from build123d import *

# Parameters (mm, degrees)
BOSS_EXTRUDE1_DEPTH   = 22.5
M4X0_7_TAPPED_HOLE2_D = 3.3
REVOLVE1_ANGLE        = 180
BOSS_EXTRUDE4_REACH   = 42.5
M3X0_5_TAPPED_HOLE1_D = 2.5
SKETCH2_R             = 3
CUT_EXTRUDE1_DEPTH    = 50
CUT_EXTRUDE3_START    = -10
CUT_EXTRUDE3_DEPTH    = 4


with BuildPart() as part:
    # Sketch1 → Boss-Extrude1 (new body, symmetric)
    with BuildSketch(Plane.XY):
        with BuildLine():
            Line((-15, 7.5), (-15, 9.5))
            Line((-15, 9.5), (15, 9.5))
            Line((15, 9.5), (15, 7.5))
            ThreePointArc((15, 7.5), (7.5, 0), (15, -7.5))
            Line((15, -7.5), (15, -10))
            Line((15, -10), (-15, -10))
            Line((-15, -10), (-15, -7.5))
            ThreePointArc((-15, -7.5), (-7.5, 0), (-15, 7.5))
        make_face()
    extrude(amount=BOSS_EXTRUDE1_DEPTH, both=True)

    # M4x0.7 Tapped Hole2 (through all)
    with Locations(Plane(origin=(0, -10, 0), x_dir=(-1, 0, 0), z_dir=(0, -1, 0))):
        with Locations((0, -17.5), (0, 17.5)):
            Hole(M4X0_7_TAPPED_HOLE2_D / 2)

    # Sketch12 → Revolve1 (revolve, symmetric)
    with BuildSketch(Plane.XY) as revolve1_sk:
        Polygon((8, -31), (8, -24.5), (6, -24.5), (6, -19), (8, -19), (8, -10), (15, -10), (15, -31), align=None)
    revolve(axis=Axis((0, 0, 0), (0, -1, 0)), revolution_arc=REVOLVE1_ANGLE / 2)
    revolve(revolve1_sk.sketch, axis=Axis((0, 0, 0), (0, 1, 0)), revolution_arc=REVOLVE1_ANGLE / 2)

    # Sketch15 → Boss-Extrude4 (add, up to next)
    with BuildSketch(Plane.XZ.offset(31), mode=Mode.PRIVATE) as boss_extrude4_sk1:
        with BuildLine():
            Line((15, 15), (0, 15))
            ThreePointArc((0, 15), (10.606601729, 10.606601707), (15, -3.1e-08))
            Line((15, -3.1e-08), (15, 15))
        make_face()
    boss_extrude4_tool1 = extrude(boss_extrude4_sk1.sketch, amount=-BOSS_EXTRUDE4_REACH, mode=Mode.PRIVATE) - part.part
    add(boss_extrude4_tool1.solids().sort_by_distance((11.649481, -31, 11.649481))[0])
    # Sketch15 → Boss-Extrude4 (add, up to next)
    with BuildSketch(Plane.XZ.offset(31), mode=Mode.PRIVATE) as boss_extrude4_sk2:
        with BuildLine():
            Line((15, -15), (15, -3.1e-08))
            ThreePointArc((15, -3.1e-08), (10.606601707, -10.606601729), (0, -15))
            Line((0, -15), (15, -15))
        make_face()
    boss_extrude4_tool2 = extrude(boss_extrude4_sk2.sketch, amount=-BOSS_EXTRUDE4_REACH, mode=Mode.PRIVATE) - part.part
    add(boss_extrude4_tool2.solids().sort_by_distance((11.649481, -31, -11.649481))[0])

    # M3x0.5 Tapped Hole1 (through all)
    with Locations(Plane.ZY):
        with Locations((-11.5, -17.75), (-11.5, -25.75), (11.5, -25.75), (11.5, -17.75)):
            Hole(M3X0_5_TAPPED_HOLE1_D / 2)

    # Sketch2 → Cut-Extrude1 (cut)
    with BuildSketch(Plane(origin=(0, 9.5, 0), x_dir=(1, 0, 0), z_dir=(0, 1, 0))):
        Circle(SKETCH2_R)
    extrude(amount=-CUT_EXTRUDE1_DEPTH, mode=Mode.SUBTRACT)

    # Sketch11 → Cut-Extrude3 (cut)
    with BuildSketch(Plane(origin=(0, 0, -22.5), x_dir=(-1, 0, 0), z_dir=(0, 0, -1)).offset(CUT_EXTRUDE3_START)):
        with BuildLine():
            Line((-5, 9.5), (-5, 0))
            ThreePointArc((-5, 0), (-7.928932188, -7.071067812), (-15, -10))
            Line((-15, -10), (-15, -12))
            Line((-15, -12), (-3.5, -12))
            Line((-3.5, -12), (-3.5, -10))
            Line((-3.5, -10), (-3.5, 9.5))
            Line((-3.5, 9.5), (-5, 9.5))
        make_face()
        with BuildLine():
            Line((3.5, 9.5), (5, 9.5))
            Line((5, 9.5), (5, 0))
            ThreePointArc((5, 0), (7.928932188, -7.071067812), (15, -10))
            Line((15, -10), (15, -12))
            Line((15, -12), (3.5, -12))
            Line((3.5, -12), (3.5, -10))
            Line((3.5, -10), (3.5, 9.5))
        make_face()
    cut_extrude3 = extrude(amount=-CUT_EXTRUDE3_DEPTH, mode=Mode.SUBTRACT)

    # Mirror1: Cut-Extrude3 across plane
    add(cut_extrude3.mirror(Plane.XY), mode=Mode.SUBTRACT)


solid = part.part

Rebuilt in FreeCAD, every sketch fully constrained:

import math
import FreeCAD as App
import Part
import Sketcher

V = App.Vector

doc = App.newDocument("Part")
params = doc.addObject("Spreadsheet::Sheet", "Params")
for row, (alias, value) in enumerate([
    ("sketch1_radius", "7.5 mm"),
    ("sketch1_width", "30 mm"),
    ("sketch1_height", "2 mm"),
    ("sketch1_height2", "2.5 mm"),
    ("pad1_length", "45 mm"),
    ("sketch2_diameter", "3.3 mm"),
    ("hole_diameter", "3.3 mm"),
    ("sketch3_width", "7 mm"),
    ("sketch3_width2", "2 mm"),
    ("sketch3_height", "21 mm"),
    ("sketch3_height2", "9 mm"),
    ("sketch3_height3", "6.5 mm"),
    ("revolution_angle", "90 deg"),
    ("sketch4_width", "7 mm"),
    ("sketch4_width2", "2 mm"),
    ("sketch4_height", "21 mm"),
    ("sketch4_height2", "9 mm"),
    ("sketch4_height3", "6.5 mm"),
    ("revolution2_angle", "90 deg"),
    ("sketch5_radius", "15 mm"),
    ("sketch6_radius", "15 mm"),
    ("sketch7_diameter", "2.5 mm"),
    ("hole2_diameter", "2.5 mm"),
    ("sketch8_diameter", "6 mm"),
    ("pocket1_length", "50 mm"),
    ("sketch9_radius", "10 mm"),
    ("sketch9_height", "2 mm"),
    ("sketch9_width", "11.5 mm"),
    ("sketch9_height2", "9.5 mm"),
    ("pocket2_length", "4 mm"),
], start=1):
    params.set(f"A{row}", alias)
    params.set(f"B{row}", "=" + value)
    params.setAlias(f"B{row}", alias)

body = doc.addObject("PartDesign::Body", "Body")

sketch1 = body.newObject("Sketcher::SketchObject", "Sketch")
sketch1.AttachmentSupport = (doc.getObject("XY_Plane"), [""])
sketch1.MapMode = "FlatFace"
sketch1.addGeometry([
    Part.LineSegment(V(-15, 9.5, 0), V(-15, 7.5, 0)),
    Part.ArcOfCircle(Part.Circle(V(-15, 0, 0), V(0, 0, 1), 7.5), math.radians(-90), math.radians(90)),
    Part.LineSegment(V(-15, -7.5, 0), V(-15, -10, 0)),
    Part.LineSegment(V(-15, -10, 0), V(15, -10, 0)),
    Part.LineSegment(V(15, -10, 0), V(15, -7.5, 0)),
    Part.ArcOfCircle(Part.Circle(V(15, 0, 0), V(0, 0, 1), 7.5), math.radians(90), math.radians(270)),
    Part.LineSegment(V(15, 7.5, 0), V(15, 9.5, 0)),
    Part.LineSegment(V(15, 9.5, 0), V(-15, 9.5, 0)),
], False)
sketch1.addConstraint([
    Sketcher.Constraint("Coincident", 0, 2, 1, 2),
    Sketcher.Constraint("Coincident", 1, 1, 2, 1),
    Sketcher.Constraint("Coincident", 2, 2, 3, 1),
    Sketcher.Constraint("Coincident", 3, 2, 4, 1),
    Sketcher.Constraint("Coincident", 4, 2, 5, 2),
    Sketcher.Constraint("Coincident", 5, 1, 6, 1),
    Sketcher.Constraint("Coincident", 6, 2, 7, 1),
    Sketcher.Constraint("Coincident", 7, 2, 0, 1),
    Sketcher.Constraint("Vertical", 0),
    Sketcher.Constraint("Vertical", 2),
    Sketcher.Constraint("Horizontal", 3),
    Sketcher.Constraint("Vertical", 4),
    Sketcher.Constraint("Vertical", 6),
    Sketcher.Constraint("Horizontal", 7),
    Sketcher.Constraint("Equal", 1, 5),
    Sketcher.Constraint("Symmetric", 1, 3, 5, 3, -1, 1),
    Sketcher.Constraint("Symmetric", 1, 1, 4, 2, -2),
    Sketcher.Constraint("Vertical", 1, 3, 0, 2),
    Sketcher.Constraint("Vertical", 0, 2, 1, 1),
    Sketcher.Constraint("Vertical", 4, 2, 5, 1),
    Sketcher.Constraint("Radius", 1, 7.5),
    Sketcher.Constraint("DistanceX", 3, 1, 3, 2, 30.0),
    Sketcher.Constraint("DistanceY", 0, 2, 0, 1, 2.0),
    Sketcher.Constraint("DistanceY", 2, 2, 2, 1, 2.5),
])
sketch1.setExpression("Constraints[20]", "Params.sketch1_radius")
sketch1.setExpression("Constraints[21]", "Params.sketch1_width")
sketch1.setExpression("Constraints[22]", "Params.sketch1_height")
sketch1.setExpression("Constraints[23]", "Params.sketch1_height2")
pad1 = body.newObject("PartDesign::Pad", "Pad")
pad1.Profile = sketch1
pad1.setExpression("Length", "Params.pad1_length")
pad1.Midplane = True

sketch2 = body.newObject("Sketcher::SketchObject", "Sketch001")
sketch2.AttachmentSupport = (doc.getObject("XZ_Plane"), [""])
sketch2.MapMode = "FlatFace"
sketch2.AttachmentOffset = App.Placement(V(0, 0, 10), App.Rotation())
sketch2.addGeometry([
    Part.Circle(V(0, 17.5, 0), V(0, 0, 1), 1.6),
    Part.Circle(V(0, -17.5, 0), V(0, 0, 1), 1.6),
], False)
sketch2.addConstraint([
    Sketcher.Constraint("Equal", 0, 1),
    Sketcher.Constraint("Symmetric", 0, 3, 1, 3, -1, 1),
    Sketcher.Constraint("PointOnObject", 0, 3, -2),
    Sketcher.Constraint("Diameter", 0, 3.3),
    Sketcher.Constraint("DistanceY", 1, 3, 0, 3, 35.0),
])
sketch2.setExpression("Constraints[3]", "Params.sketch2_diameter")
doc.recompute()
hole = body.newObject("PartDesign::Hole", "Hole")
hole.Profile = sketch2
hole.ThreadType = "None"
hole.setExpression("Diameter", "Params.hole_diameter")
hole.DepthType = "ThroughAll"

sketch3 = body.newObject("Sketcher::SketchObject", "Sketch002")
sketch3.AttachmentSupport = (doc.getObject("XY_Plane"), [""])
sketch3.MapMode = "FlatFace"
sketch3.addGeometry([
    Part.LineSegment(V(8, -24.5, 0), V(8, -31, 0)),
    Part.LineSegment(V(8, -31, 0), V(15, -31, 0)),
    Part.LineSegment(V(15, -31, 0), V(15, -10, 0)),
    Part.LineSegment(V(15, -10, 0), V(8, -10, 0)),
    Part.LineSegment(V(8, -10, 0), V(8, -19, 0)),
    Part.LineSegment(V(8, -19, 0), V(6, -19, 0)),
    Part.LineSegment(V(6, -19, 0), V(6, -24.5, 0)),
    Part.LineSegment(V(6, -24.5, 0), V(8, -24.5, 0)),
], False)
sketch3.addConstraint([
    Sketcher.Constraint("Coincident", 0, 2, 1, 1),
    Sketcher.Constraint("Coincident", 1, 2, 2, 1),
    Sketcher.Constraint("Coincident", 2, 2, 3, 1),
    Sketcher.Constraint("Coincident", 3, 2, 4, 1),
    Sketcher.Constraint("Coincident", 4, 2, 5, 1),
    Sketcher.Constraint("Coincident", 5, 2, 6, 1),
    Sketcher.Constraint("Coincident", 6, 2, 7, 1),
    Sketcher.Constraint("Coincident", 7, 2, 0, 1),
    Sketcher.Constraint("Vertical", 0),
    Sketcher.Constraint("Horizontal", 1),
    Sketcher.Constraint("Vertical", 2),
    Sketcher.Constraint("Horizontal", 3),
    Sketcher.Constraint("Vertical", 4),
    Sketcher.Constraint("Horizontal", 5),
    Sketcher.Constraint("Vertical", 6),
    Sketcher.Constraint("Horizontal", 7),
    Sketcher.Constraint("Vertical", 0, 2, 3, 2),
    Sketcher.Constraint("DistanceX", 1, 1, 1, 2, 7.0),
    Sketcher.Constraint("DistanceX", 5, 2, 5, 1, 2.0),
    Sketcher.Constraint("DistanceY", 2, 1, 2, 2, 21.0),
    Sketcher.Constraint("DistanceY", 4, 2, 4, 1, 9.0),
    Sketcher.Constraint("DistanceY", 0, 2, 0, 1, 6.5),
    Sketcher.Constraint("DistanceX", -1, 1, 0, 2, 8.0),
    Sketcher.Constraint("DistanceY", 0, 2, -1, 1, 31.0),
])
sketch3.setExpression("Constraints[17]", "Params.sketch3_width")
sketch3.setExpression("Constraints[18]", "Params.sketch3_width2")
sketch3.setExpression("Constraints[19]", "Params.sketch3_height")
sketch3.setExpression("Constraints[20]", "Params.sketch3_height2")
sketch3.setExpression("Constraints[21]", "Params.sketch3_height3")
revolution = body.newObject("PartDesign::Revolution", "Revolution")
revolution.Profile = sketch3
revolution.ReferenceAxis = (sketch3, ["V_Axis"])
revolution.setExpression("Angle", "Params.revolution_angle")
revolution.Reversed = True

sketch4 = body.newObject("Sketcher::SketchObject", "Sketch003")
sketch4.AttachmentSupport = (doc.getObject("XY_Plane"), [""])
sketch4.MapMode = "FlatFace"
sketch4.addGeometry([
    Part.LineSegment(V(8, -24.5, 0), V(8, -31, 0)),
    Part.LineSegment(V(8, -31, 0), V(15, -31, 0)),
    Part.LineSegment(V(15, -31, 0), V(15, -10, 0)),
    Part.LineSegment(V(15, -10, 0), V(8, -10, 0)),
    Part.LineSegment(V(8, -10, 0), V(8, -19, 0)),
    Part.LineSegment(V(8, -19, 0), V(6, -19, 0)),
    Part.LineSegment(V(6, -19, 0), V(6, -24.5, 0)),
    Part.LineSegment(V(6, -24.5, 0), V(8, -24.5, 0)),
], False)
sketch4.addConstraint([
    Sketcher.Constraint("Coincident", 0, 2, 1, 1),
    Sketcher.Constraint("Coincident", 1, 2, 2, 1),
    Sketcher.Constraint("Coincident", 2, 2, 3, 1),
    Sketcher.Constraint("Coincident", 3, 2, 4, 1),
    Sketcher.Constraint("Coincident", 4, 2, 5, 1),
    Sketcher.Constraint("Coincident", 5, 2, 6, 1),
    Sketcher.Constraint("Coincident", 6, 2, 7, 1),
    Sketcher.Constraint("Coincident", 7, 2, 0, 1),
    Sketcher.Constraint("Vertical", 0),
    Sketcher.Constraint("Horizontal", 1),
    Sketcher.Constraint("Vertical", 2),
    Sketcher.Constraint("Horizontal", 3),
    Sketcher.Constraint("Vertical", 4),
    Sketcher.Constraint("Horizontal", 5),
    Sketcher.Constraint("Vertical", 6),
    Sketcher.Constraint("Horizontal", 7),
    Sketcher.Constraint("Vertical", 0, 2, 3, 2),
    Sketcher.Constraint("DistanceX", 1, 1, 1, 2, 7.0),
    Sketcher.Constraint("DistanceX", 5, 2, 5, 1, 2.0),
    Sketcher.Constraint("DistanceY", 2, 1, 2, 2, 21.0),
    Sketcher.Constraint("DistanceY", 4, 2, 4, 1, 9.0),
    Sketcher.Constraint("DistanceY", 0, 2, 0, 1, 6.5),
    Sketcher.Constraint("DistanceX", -1, 1, 0, 2, 8.0),
    Sketcher.Constraint("DistanceY", 0, 2, -1, 1, 31.0),
])
sketch4.setExpression("Constraints[17]", "Params.sketch4_width")
sketch4.setExpression("Constraints[18]", "Params.sketch4_width2")
sketch4.setExpression("Constraints[19]", "Params.sketch4_height")
sketch4.setExpression("Constraints[20]", "Params.sketch4_height2")
sketch4.setExpression("Constraints[21]", "Params.sketch4_height3")
revolution2 = body.newObject("PartDesign::Revolution", "Revolution001")
revolution2.Profile = sketch4
revolution2.ReferenceAxis = (sketch4, ["V_Axis"])
revolution2.setExpression("Angle", "Params.revolution2_angle")

sketch5 = body.newObject("Sketcher::SketchObject", "Sketch004")
sketch5.AttachmentSupport = (doc.getObject("XZ_Plane"), [""])
sketch5.MapMode = "FlatFace"
sketch5.AttachmentOffset = App.Placement(V(0, 0, 31), App.Rotation())
sketch5.addGeometry([
    Part.LineSegment(V(15, 15, 0), V(0, 15, 0)),
    Part.ArcOfCircle(Part.Circle(V(0, 0, 0), V(0, 0, 1), 15), math.radians(0), math.radians(90)),
    Part.LineSegment(V(15, 0, 0), V(15, 15, 0)),
], False)
sketch5.addConstraint([
    Sketcher.Constraint("Tangent", 0, 2, 1, 2),
    Sketcher.Constraint("Tangent", 1, 1, 2, 1),
    Sketcher.Constraint("Coincident", 2, 2, 0, 1),
    Sketcher.Constraint("Horizontal", 0),
    Sketcher.Constraint("Vertical", 2),
    Sketcher.Constraint("Coincident", 1, 3, -1, 1),
    Sketcher.Constraint("Radius", 1, 15.0),
])
sketch5.setExpression("Constraints[6]", "Params.sketch5_radius")
pad2 = body.newObject("PartDesign::Pad", "Pad001")
pad2.Profile = sketch5
pad2.Type = "UpToFirst"
pad2.Reversed = True

sketch6 = body.newObject("Sketcher::SketchObject", "Sketch005")
sketch6.AttachmentSupport = (doc.getObject("XZ_Plane"), [""])
sketch6.MapMode = "FlatFace"
sketch6.AttachmentOffset = App.Placement(V(0, 0, 31), App.Rotation())
sketch6.addGeometry([
    Part.LineSegment(V(15, -15, 0), V(15, 0, 0)),
    Part.ArcOfCircle(Part.Circle(V(0, 0, 0), V(0, 0, 1), 15), math.radians(-90), math.radians(0)),
    Part.LineSegment(V(0, -15, 0), V(15, -15, 0)),
], False)
sketch6.addConstraint([
    Sketcher.Constraint("Tangent", 0, 2, 1, 2),
    Sketcher.Constraint("Tangent", 1, 1, 2, 1),
    Sketcher.Constraint("Coincident", 2, 2, 0, 1),
    Sketcher.Constraint("Vertical", 0),
    Sketcher.Constraint("Horizontal", 2),
    Sketcher.Constraint("Coincident", 1, 3, -1, 1),
    Sketcher.Constraint("Radius", 1, 15.0),
])
sketch6.setExpression("Constraints[6]", "Params.sketch6_radius")
pad3 = body.newObject("PartDesign::Pad", "Pad002")
pad3.Profile = sketch6
pad3.Type = "UpToFirst"
pad3.Reversed = True

sketch7 = body.newObject("Sketcher::SketchObject", "Sketch006")
sketch7.AttachmentSupport = (doc.getObject("YZ_Plane"), [""])
sketch7.MapMode = "FlatFace"
sketch7.addGeometry([
    Part.Circle(V(-17.8, -11.5, 0), V(0, 0, 1), 1.2),
    Part.Circle(V(-25.8, -11.5, 0), V(0, 0, 1), 1.2),
    Part.Circle(V(-25.8, 11.5, 0), V(0, 0, 1), 1.2),
    Part.Circle(V(-17.8, 11.5, 0), V(0, 0, 1), 1.2),
], False)
sketch7.addConstraint([
    Sketcher.Constraint("Equal", 0, 1),
    Sketcher.Constraint("Equal", 1, 2),
    Sketcher.Constraint("Equal", 2, 3),
    Sketcher.Constraint("Symmetric", 1, 3, 2, 3, -1),
    Sketcher.Constraint("Symmetric", 0, 3, 3, 3, -1),
    Sketcher.Constraint("Horizontal", 0, 3, 1, 3),
    Sketcher.Constraint("Diameter", 0, 2.5),
    Sketcher.Constraint("DistanceX", 1, 3, 0, 3, 8.0),
    Sketcher.Constraint("DistanceY", 1, 3, 2, 3, 23.0),
    Sketcher.Constraint("DistanceX", 0, 3, -1, 1, 17.75),
])
sketch7.setExpression("Constraints[6]", "Params.sketch7_diameter")
doc.recompute()
hole2 = body.newObject("PartDesign::Hole", "Hole001")
hole2.Profile = sketch7
hole2.ThreadType = "None"
hole2.setExpression("Diameter", "Params.hole2_diameter")
hole2.DepthType = "ThroughAll"
hole2.Reversed = True

sketch8 = body.newObject("Sketcher::SketchObject", "Sketch007")
sketch8.AttachmentSupport = (doc.getObject("XZ_Plane"), [""])
sketch8.MapMode = "FlatFace"
sketch8.AttachmentOffset = App.Placement(V(0, 0, -9.5), App.Rotation())
sketch8.addGeometry(Part.Circle(V(0, 0, 0), V(0, 0, 1), 3), False)
sketch8.addConstraint([
    Sketcher.Constraint("Coincident", 0, 3, -1, 1),
    Sketcher.Constraint("Diameter", 0, 6.0),
])
sketch8.setExpression("Constraints[1]", "Params.sketch8_diameter")
pocket1 = body.newObject("PartDesign::Pocket", "Pocket")
pocket1.Profile = sketch8
pocket1.setExpression("Length", "Params.pocket1_length")
pocket1.Reversed = True

sketch9 = body.newObject("Sketcher::SketchObject", "Sketch008")
sketch9.AttachmentSupport = (doc.getObject("XY_Plane"), [""])
sketch9.MapMode = "FlatFace"
sketch9.AttachmentOffset = App.Placement(V(0, 0, -12.5), App.Rotation())
sketch9.addGeometry([
    Part.LineSegment(V(5, 9.5, 0), V(5, 0, 0)),
    Part.ArcOfCircle(Part.Circle(V(15, 0, 0), V(0, 0, 1), 10), math.radians(180), math.radians(270)),
    Part.LineSegment(V(15, -10, 0), V(15, -12, 0)),
    Part.LineSegment(V(15, -12, 0), V(3.5, -12, 0)),
    Part.LineSegment(V(3.5, -12, 0), V(3.5, 9.5, 0)),
    Part.LineSegment(V(3.5, 9.5, 0), V(5, 9.5, 0)),
    Part.LineSegment(V(-5, 9.5, 0), V(-3.5, 9.5, 0)),
    Part.LineSegment(V(-3.5, 9.5, 0), V(-3.5, -12, 0)),
    Part.LineSegment(V(-3.5, -12, 0), V(-15, -12, 0)),
    Part.LineSegment(V(-15, -12, 0), V(-15, -10, 0)),
    Part.ArcOfCircle(Part.Circle(V(-15, 0, 0), V(0, 0, 1), 10), math.radians(-90), math.radians(0)),
    Part.LineSegment(V(-5, 0, 0), V(-5, 9.5, 0)),
], False)
sketch9.addConstraint([
    Sketcher.Constraint("Tangent", 0, 2, 1, 1),
    Sketcher.Constraint("Coincident", 1, 2, 2, 1),
    Sketcher.Constraint("Coincident", 2, 2, 3, 1),
    Sketcher.Constraint("Coincident", 3, 2, 4, 1),
    Sketcher.Constraint("Coincident", 4, 2, 5, 1),
    Sketcher.Constraint("Coincident", 5, 2, 0, 1),
    Sketcher.Constraint("Coincident", 6, 2, 7, 1),
    Sketcher.Constraint("Coincident", 7, 2, 8, 1),
    Sketcher.Constraint("Coincident", 8, 2, 9, 1),
    Sketcher.Constraint("Coincident", 9, 2, 10, 1),
    Sketcher.Constraint("Tangent", 10, 2, 11, 1),
    Sketcher.Constraint("Coincident", 11, 2, 6, 1),
    Sketcher.Constraint("Vertical", 0),
    Sketcher.Constraint("Vertical", 2),
    Sketcher.Constraint("Horizontal", 3),
    Sketcher.Constraint("Vertical", 4),
    Sketcher.Constraint("Horizontal", 5),
    Sketcher.Constraint("Horizontal", 6),
    Sketcher.Constraint("Vertical", 7),
    Sketcher.Constraint("Horizontal", 8),
    Sketcher.Constraint("Vertical", 9),
    Sketcher.Constraint("Vertical", 11),
    Sketcher.Constraint("Equal", 1, 10),
    Sketcher.Constraint("Symmetric", 1, 3, 10, 3, -1, 1),
    Sketcher.Constraint("Symmetric", 4, 2, 6, 2, -2),
    Sketcher.Constraint("Symmetric", 2, 2, 8, 2, -2),
    Sketcher.Constraint("PointOnObject", 1, 3, -1),
    Sketcher.Constraint("Vertical", 10, 3, 8, 2),
    Sketcher.Constraint("Radius", 1, 10.0),
    Sketcher.Constraint("DistanceY", 2, 2, 2, 1, 2.0),
    Sketcher.Constraint("DistanceX", 3, 2, 3, 1, 11.5),
    Sketcher.Constraint("DistanceY", 0, 2, 0, 1, 9.5),
    Sketcher.Constraint("DistanceX", -1, 1, 1, 3, 15.0),
])
sketch9.setExpression("Constraints[28]", "Params.sketch9_radius")
sketch9.setExpression("Constraints[29]", "Params.sketch9_height")
sketch9.setExpression("Constraints[30]", "Params.sketch9_width")
sketch9.setExpression("Constraints[31]", "Params.sketch9_height2")
pocket2 = body.newObject("PartDesign::Pocket", "Pocket001")
pocket2.Profile = sketch9
pocket2.setExpression("Length", "Params.pocket2_length")
pocket2.Reversed = True
doc.recompute()

mirrored = body.newObject("PartDesign::Mirrored", "Mirrored")
mirrored.Originals = [pocket2]
mirrored.MirrorPlane = (doc.getObject("XY_Plane"), [""])
body.Tip = mirrored

doc.recompute()
